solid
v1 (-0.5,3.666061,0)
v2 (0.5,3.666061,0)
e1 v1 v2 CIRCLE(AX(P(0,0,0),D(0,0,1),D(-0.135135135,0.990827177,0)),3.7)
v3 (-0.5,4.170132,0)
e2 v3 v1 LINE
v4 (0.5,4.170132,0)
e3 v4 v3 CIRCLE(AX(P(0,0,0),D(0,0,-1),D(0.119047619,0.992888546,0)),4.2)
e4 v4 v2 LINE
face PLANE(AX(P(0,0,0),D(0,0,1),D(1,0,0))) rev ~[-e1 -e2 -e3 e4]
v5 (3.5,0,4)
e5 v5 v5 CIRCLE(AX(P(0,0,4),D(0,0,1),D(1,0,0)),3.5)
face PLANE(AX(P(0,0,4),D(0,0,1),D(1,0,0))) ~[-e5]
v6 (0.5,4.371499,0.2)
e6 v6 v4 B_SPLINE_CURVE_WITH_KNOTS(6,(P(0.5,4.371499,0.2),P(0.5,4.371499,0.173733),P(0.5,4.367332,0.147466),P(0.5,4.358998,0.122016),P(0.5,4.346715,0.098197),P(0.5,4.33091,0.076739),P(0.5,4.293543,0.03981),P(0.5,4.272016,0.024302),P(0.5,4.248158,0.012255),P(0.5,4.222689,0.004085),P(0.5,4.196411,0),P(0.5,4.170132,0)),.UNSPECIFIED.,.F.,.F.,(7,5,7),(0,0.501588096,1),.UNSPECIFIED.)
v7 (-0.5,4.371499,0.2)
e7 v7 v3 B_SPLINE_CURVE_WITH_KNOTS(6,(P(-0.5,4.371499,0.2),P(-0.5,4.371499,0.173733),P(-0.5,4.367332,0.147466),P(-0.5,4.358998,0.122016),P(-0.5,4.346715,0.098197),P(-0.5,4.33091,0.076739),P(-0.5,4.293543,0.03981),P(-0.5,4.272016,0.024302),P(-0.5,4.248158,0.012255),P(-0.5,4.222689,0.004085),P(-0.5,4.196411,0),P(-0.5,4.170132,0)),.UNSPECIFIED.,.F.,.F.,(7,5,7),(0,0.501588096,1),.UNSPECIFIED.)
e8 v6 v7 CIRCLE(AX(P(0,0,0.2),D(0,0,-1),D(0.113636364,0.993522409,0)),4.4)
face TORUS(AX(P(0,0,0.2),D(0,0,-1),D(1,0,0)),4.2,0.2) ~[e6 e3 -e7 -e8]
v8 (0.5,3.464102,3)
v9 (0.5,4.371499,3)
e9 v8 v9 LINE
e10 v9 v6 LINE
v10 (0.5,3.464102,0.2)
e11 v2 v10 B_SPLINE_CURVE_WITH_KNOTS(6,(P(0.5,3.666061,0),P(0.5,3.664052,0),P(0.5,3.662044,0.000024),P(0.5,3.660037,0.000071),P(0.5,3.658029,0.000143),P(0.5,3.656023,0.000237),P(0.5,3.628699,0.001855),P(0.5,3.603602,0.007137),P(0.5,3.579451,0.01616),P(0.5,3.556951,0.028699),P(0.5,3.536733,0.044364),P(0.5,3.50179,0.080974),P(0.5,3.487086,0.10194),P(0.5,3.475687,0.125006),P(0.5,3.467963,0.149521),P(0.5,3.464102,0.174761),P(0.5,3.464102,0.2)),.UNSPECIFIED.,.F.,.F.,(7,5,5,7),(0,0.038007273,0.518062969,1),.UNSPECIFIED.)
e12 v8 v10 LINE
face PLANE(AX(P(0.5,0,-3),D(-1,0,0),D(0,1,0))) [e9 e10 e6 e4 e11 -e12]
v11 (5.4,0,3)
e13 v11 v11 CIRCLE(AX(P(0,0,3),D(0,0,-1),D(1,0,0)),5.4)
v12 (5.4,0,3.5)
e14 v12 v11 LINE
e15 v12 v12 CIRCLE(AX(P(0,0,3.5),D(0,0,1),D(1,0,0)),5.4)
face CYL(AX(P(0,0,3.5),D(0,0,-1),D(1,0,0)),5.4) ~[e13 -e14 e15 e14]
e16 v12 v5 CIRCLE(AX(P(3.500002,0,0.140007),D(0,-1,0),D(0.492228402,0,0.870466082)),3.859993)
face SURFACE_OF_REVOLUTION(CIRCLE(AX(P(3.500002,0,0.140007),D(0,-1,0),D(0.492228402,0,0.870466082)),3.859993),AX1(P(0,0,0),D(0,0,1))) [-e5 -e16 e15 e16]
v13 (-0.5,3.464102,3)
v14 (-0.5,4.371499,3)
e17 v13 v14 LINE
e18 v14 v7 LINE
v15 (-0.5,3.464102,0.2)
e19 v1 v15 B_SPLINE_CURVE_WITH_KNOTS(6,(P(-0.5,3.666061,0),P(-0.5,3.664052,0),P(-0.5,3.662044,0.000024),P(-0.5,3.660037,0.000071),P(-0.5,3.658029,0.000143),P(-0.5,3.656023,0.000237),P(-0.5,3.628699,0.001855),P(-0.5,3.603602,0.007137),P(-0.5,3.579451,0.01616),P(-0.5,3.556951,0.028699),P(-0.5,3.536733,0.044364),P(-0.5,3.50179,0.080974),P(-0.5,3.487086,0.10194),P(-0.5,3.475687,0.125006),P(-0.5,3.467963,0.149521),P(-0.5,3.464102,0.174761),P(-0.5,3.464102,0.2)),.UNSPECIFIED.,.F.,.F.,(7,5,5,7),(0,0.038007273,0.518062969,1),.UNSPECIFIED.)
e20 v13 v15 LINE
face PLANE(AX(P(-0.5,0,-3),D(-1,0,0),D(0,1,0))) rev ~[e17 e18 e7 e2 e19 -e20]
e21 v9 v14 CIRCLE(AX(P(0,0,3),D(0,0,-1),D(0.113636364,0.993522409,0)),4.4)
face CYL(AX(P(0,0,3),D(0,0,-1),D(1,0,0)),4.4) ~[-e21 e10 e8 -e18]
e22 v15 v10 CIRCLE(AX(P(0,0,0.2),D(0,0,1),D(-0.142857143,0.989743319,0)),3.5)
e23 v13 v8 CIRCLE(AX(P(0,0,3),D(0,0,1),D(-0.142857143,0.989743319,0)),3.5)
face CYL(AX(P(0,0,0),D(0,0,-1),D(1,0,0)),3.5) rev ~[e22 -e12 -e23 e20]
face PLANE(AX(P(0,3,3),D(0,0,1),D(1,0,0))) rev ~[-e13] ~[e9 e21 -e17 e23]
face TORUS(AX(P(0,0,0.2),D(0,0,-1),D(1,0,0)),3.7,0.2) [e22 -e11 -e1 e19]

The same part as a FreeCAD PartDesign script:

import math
import FreeCAD as App
import Part
import Sketcher

V = App.Vector


def edges_at(feature, points):
    """Names of the edges that pass closest to the given points."""
    edges = feature.Shape.Edges
    near = lambda p: min(range(len(edges)), key=lambda i: edges[i].distToShape(Part.Vertex(*p))[0])
    return sorted({f"Edge{near(p) + 1}" for p in points})

doc = App.newDocument("Part")
body = doc.addObject("PartDesign::Body", "Body")

sketch1 = body.newObject("Sketcher::SketchObject", "Sketch")
sketch1.AttachmentSupport = (doc.getObject("XY_Plane"), [""])
sketch1.MapMode = "FlatFace"
sketch1.AttachmentOffset = App.Placement(V(0, 0, -3), App.Rotation())
sketch1.addGeometry(Part.LineSegment(V(-0.5, 6, 0), V(-0.5, 0, 0)), False)
sketch1.addGeometry(Part.LineSegment(V(-0.5, 0, 0), V(0.5, 0, 0)), False)
sketch1.addGeometry(Part.LineSegment(V(0.5, 0, 0), V(0.5, 6, 0)), False)
sketch1.addGeometry(Part.LineSegment(V(0.5, 6, 0), V(-0.5, 6, 0)), False)
sketch1.addConstraint(Sketcher.Constraint("Coincident", 0, 2, 1, 1))
sketch1.addConstraint(Sketcher.Constraint("Coincident", 1, 2, 2, 1))
sketch1.addConstraint(Sketcher.Constraint("Coincident", 2, 2, 3, 1))
sketch1.addConstraint(Sketcher.Constraint("Coincident", 3, 2, 0, 1))
sketch1.addConstraint(Sketcher.Constraint("Vertical", 0))
sketch1.addConstraint(Sketcher.Constraint("Horizontal", 1))
sketch1.addConstraint(Sketcher.Constraint("Vertical", 2))
sketch1.addConstraint(Sketcher.Constraint("Horizontal", 3))
sketch1.addConstraint(Sketcher.Constraint("Symmetric", 0, 2, 1, 2, -1, 1))
sketch1.addConstraint(Sketcher.Constraint("DistanceX", 1, 1, 1, 2, 1.0))
sketch1.addConstraint(Sketcher.Constraint("DistanceY", 0, 2, 0, 1, 6.0))
pad1 = body.newObject("PartDesign::Pad", "Pad")
pad1.Profile = sketch1
pad1.Length = 6
body2 = doc.addObject("PartDesign::Body", "Body001")

sketch2 = body2.newObject("Sketcher::SketchObject", "Sketch001")
sketch2.AttachmentSupport = (doc.getObject("XZ_Plane001"), [""])
sketch2.MapMode = "FlatFace"
sketch2.addGeometry(Part.LineSegment(V(5.4, 3, 0), V(5.4, 3.5, 0)), False)
sketch2.addGeometry(Part.ArcOfCircle(Part.Circle(V(3.500002, 0.140007, 0), V(0, 0, 1), 3.859993), math.radians(60.512847), math.radians(90.000028)), False)
sketch2.addGeometry(Part.LineSegment(V(3.5, 4, 0), V(0, 4, 0)), False)
sketch2.addGeometry(Part.LineSegment(V(0, 4, 0), V(0, 0, 0)), False)
sketch2.addGeometry(Part.LineSegment(V(0, 0, 0), V(4.4, 0, 0)), False)
sketch2.addGeometry(Part.LineSegment(V(4.4, 0, 0), V(4.4, 3, 0)), False)
sketch2.addGeometry(Part.LineSegment(V(4.4, 3, 0), V(5.4, 3, 0)), False)
sketch2.addConstraint(Sketcher.Constraint("Coincident", 0, 2, 1, 1))
sketch2.addConstraint(Sketcher.Constraint("Tangent", 1, 2, 2, 1))
sketch2.addConstraint(Sketcher.Constraint("Coincident", 2, 2, 3, 1))
sketch2.addConstraint(Sketcher.Constraint("Coincident", 3, 2, 4, 1))
sketch2.addConstraint(Sketcher.Constraint("Coincident", 4, 2, 5, 1))
sketch2.addConstraint(Sketcher.Constraint("Coincident", 5, 2, 6, 1))
sketch2.addConstraint(Sketcher.Constraint("Coincident", 6, 2, 0, 1))
sketch2.addConstraint(Sketcher.Constraint("Vertical", 0))
sketch2.addConstraint(Sketcher.Constraint("Horizontal", 2))
sketch2.addConstraint(Sketcher.Constraint("Vertical", 3))
sketch2.addConstraint(Sketcher.Constraint("Horizontal", 4))
sketch2.addConstraint(Sketcher.Constraint("Vertical", 5))
sketch2.addConstraint(Sketcher.Constraint("Horizontal", 6))
sketch2.addConstraint(Sketcher.Constraint("Coincident", 3, 2, -1, 1))
sketch2.addConstraint(Sketcher.Constraint("DistanceX", 6, 1, 6, 2, 1.0))
sketch2.addConstraint(Sketcher.Constraint("DistanceY", 3, 2, 3, 1, 4.0))
sketch2.addConstraint(Sketcher.Constraint("DistanceY", 5, 1, 5, 2, 3.0))
sketch2.addConstraint(Sketcher.Constraint("DistanceX", 2, 2, 2, 1, 3.5))
sketch2.addConstraint(Sketcher.Constraint("DistanceX", 4, 1, 4, 2, 4.4))
sketch2.addConstraint(Sketcher.Constraint("DistanceY", 0, 1, 0, 2, 0.5))
revolution = body2.newObject("PartDesign::Revolution", "Revolution")
revolution.Profile = sketch2
revolution.ReferenceAxis = (sketch2, ["V_Axis"])
revolution.Angle = 360

sketch3 = body2.newObject("Sketcher::SketchObject", "Sketch002")
sketch3.AttachmentSupport = (doc.getObject("XY_Plane001"), [""])
sketch3.MapMode = "FlatFace"
sketch3.addGeometry(Part.Circle(V(0, 0, 0), V(0, 0, 1), 3.5), False)
sketch3.addConstraint(Sketcher.Constraint("Coincident", 0, 3, -1, 1))
sketch3.addConstraint(Sketcher.Constraint("Diameter", 0, 7.0))
pocket1 = body2.newObject("PartDesign::Pocket", "Pocket")
pocket1.Profile = sketch3
pocket1.Length = 3
pocket1.Reversed = True
doc.recompute()

fillet = body2.newObject("PartDesign::Fillet", "Fillet")
fillet.Base = (pocket1, edges_at(pocket1, [(-4.4, 0, 0)]))
fillet.Radius = 0.2
doc.recompute()

fillet2 = body2.newObject("PartDesign::Fillet", "Fillet001")
fillet2.Base = (fillet, edges_at(fillet, [(-3.5, 0, 0)]))
fillet2.Radius = 0.2
doc.recompute()

boolean = body2.newObject("PartDesign::Boolean", "Boolean")
boolean.Type = "Cut"
boolean.addObjects([body])

doc.recompute()
